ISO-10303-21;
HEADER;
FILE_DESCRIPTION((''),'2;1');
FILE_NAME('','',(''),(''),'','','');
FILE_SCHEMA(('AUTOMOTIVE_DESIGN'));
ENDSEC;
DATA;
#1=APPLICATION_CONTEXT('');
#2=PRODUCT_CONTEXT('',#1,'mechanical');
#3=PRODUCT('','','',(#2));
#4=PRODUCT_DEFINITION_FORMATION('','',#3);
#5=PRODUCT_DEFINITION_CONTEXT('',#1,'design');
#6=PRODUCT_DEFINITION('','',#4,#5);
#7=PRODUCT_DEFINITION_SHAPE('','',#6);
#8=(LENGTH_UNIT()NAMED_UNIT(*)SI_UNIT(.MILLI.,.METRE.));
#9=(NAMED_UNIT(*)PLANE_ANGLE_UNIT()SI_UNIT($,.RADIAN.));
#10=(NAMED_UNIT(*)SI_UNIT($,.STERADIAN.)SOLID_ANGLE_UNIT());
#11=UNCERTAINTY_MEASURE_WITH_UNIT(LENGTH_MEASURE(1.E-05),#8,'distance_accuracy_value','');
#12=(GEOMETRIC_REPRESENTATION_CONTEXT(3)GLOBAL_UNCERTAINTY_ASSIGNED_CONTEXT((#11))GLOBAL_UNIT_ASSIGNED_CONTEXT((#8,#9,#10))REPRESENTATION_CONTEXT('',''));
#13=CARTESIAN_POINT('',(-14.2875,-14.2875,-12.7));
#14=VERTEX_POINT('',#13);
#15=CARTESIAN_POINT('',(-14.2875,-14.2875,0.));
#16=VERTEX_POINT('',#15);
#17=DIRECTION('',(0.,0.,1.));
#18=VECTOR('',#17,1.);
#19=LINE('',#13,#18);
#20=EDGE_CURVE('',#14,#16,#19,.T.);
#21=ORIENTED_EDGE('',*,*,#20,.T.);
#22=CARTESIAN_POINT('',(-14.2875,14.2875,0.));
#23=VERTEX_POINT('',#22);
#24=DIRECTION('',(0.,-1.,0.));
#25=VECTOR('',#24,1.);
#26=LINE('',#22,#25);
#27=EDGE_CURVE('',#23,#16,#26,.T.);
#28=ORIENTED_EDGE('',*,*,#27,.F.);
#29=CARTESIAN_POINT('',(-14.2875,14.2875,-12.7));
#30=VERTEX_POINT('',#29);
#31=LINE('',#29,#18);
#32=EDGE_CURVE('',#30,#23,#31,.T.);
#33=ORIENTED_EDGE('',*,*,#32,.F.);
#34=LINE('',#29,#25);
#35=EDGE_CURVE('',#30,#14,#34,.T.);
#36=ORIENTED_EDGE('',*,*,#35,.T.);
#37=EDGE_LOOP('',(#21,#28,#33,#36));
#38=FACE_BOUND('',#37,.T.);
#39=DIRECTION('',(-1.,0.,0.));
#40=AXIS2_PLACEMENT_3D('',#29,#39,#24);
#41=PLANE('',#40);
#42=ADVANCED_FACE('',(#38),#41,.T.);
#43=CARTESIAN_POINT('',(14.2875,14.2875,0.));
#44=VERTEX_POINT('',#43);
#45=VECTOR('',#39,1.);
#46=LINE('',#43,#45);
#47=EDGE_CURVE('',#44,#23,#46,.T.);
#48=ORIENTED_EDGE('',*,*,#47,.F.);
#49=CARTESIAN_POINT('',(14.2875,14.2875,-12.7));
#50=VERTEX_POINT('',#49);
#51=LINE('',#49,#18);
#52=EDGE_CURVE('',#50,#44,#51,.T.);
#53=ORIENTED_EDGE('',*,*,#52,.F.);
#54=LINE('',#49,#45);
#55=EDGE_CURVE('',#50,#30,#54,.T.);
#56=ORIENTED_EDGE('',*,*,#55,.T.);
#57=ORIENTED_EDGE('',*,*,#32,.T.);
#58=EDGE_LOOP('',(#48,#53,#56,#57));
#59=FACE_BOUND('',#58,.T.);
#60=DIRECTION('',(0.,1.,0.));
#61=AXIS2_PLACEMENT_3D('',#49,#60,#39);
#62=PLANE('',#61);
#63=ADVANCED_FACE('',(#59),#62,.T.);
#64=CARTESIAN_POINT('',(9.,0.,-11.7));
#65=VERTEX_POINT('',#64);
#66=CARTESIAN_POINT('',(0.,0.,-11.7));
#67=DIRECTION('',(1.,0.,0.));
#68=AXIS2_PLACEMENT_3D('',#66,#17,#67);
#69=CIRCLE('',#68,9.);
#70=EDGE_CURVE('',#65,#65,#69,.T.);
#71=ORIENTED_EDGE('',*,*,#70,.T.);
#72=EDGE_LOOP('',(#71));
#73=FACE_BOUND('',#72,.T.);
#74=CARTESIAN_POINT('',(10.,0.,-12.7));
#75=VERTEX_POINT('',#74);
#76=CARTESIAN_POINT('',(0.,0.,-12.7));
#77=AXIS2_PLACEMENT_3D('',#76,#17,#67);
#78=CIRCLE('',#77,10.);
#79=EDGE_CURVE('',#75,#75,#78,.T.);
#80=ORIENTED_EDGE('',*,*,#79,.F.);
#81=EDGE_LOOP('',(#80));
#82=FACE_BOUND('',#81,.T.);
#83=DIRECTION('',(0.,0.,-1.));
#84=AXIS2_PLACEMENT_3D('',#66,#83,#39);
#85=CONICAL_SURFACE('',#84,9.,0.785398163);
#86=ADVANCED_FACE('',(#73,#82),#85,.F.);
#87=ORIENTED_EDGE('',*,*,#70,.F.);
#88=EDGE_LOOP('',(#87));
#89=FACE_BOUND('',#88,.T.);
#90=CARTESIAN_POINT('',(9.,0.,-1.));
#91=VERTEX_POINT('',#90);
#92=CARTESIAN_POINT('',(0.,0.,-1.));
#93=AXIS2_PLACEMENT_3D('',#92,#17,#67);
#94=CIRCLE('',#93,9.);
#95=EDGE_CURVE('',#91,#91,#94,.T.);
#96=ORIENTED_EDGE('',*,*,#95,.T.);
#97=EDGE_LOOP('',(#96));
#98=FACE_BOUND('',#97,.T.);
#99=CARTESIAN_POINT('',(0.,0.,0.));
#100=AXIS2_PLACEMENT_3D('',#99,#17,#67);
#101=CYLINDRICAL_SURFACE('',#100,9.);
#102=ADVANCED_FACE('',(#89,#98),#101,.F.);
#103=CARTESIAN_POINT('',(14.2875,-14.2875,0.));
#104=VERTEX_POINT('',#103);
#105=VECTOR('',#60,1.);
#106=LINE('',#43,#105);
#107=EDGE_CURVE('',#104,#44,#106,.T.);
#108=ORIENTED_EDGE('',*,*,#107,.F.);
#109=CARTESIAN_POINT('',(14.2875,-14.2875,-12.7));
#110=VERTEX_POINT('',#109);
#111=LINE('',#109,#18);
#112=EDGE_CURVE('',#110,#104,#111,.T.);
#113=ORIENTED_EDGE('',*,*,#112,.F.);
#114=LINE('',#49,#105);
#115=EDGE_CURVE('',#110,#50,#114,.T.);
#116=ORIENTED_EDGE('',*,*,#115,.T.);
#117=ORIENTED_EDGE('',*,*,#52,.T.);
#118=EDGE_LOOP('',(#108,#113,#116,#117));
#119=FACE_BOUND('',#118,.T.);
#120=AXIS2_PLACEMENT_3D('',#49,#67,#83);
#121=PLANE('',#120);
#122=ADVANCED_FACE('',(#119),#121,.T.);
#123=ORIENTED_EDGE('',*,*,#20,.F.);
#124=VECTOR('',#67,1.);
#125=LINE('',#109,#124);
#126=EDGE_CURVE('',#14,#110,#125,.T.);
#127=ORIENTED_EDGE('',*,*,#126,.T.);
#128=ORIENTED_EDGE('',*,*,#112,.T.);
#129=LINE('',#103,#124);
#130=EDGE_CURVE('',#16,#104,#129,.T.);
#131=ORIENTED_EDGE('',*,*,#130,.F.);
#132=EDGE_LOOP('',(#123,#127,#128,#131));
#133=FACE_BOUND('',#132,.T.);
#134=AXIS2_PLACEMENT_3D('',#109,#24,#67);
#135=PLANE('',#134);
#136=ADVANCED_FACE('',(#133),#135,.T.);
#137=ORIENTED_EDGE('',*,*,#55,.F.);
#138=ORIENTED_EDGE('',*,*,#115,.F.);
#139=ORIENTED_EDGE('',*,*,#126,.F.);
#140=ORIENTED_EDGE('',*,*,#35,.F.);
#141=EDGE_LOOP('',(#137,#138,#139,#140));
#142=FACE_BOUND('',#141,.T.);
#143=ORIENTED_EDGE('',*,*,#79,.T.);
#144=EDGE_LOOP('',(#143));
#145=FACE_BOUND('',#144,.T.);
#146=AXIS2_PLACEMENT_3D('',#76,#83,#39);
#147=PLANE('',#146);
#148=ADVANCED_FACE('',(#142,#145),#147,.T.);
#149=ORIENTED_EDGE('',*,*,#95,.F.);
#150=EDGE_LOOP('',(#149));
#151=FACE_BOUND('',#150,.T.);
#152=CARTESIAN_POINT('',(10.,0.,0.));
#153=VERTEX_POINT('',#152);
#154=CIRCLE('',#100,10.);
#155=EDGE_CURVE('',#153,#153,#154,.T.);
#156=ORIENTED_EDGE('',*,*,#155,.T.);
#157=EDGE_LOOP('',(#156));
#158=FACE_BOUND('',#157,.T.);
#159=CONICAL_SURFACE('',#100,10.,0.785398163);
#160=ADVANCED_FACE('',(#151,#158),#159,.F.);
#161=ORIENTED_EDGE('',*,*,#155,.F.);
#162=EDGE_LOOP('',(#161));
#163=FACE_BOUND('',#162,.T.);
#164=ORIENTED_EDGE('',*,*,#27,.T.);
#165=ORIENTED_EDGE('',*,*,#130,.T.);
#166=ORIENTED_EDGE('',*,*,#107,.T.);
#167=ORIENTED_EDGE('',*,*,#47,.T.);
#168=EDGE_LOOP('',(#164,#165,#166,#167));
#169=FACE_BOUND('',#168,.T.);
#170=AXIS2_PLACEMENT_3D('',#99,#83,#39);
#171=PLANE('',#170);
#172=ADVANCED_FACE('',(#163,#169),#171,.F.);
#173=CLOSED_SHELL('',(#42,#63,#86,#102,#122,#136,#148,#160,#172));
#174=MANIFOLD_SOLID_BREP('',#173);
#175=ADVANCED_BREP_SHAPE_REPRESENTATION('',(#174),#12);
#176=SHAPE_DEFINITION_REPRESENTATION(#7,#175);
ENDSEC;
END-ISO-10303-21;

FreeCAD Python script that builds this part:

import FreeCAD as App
import Part
import Sketcher
Q = App.Units.Quantity

doc = App.newDocument("Part")
body = doc.addObject("PartDesign::Body", "Body")

sketch1 = body.newObject("Sketcher::SketchObject", "Sketch")
sketch1.AttachmentSupport = (doc.getObject("XY_Plane"), [""])
sketch1.MapMode = "FlatFace"
sketch1.addGeometry([
    Part.LineSegment(App.Vector(-14, 14, 0), App.Vector(-14, -14, 0)),
    Part.LineSegment(App.Vector(-14, -14, 0), App.Vector(14, -14, 0)),
    Part.LineSegment(App.Vector(14, -14, 0), App.Vector(14, 14, 0)),
    Part.LineSegment(App.Vector(14, 14, 0), App.Vector(-14, 14, 0)),
], False)
sketch1.addConstraint([
    Sketcher.Constraint("Coincident", 0, 2, 1, 1),
    Sketcher.Constraint("Coincident", 1, 2, 2, 1),
    Sketcher.Constraint("Coincident", 2, 2, 3, 1),
    Sketcher.Constraint("Coincident", 3, 2, 0, 1),
    Sketcher.Constraint("Vertical", 0),
    Sketcher.Constraint("Horizontal", 1),
    Sketcher.Constraint("Vertical", 2),
    Sketcher.Constraint("Horizontal", 3),
    Sketcher.Constraint("Symmetric", 0, 2, 2, 2, -1, 1),
    Sketcher.Constraint("Equal", 3, 0),
    Sketcher.Constraint("DistanceX", 1, 1, 1, 2, Q("28.575 mm")),
])
pad1 = body.newObject("PartDesign::Pad", "Pad")
pad1.Profile = sketch1
pad1.Length = 12.7
pad1.Reversed = True

sketch2 = body.newObject("Sketcher::SketchObject", "Sketch001")
sketch2.AttachmentSupport = (doc.getObject("YZ_Plane"), [""])
sketch2.MapMode = "FlatFace"
sketch2.addGeometry([
    Part.LineSegment(App.Vector(0, -12.7, 0), App.Vector(0, 0, 0)),
    Part.LineSegment(App.Vector(0, 0, 0), App.Vector(-10, 0, 0)),
    Part.LineSegment(App.Vector(-10, 0, 0), App.Vector(-9, -1, 0)),
    Part.LineSegment(App.Vector(-9, -1, 0), App.Vector(-9, -11.7, 0)),
    Part.LineSegment(App.Vector(-9, -11.7, 0), App.Vector(-10, -12.7, 0)),
    Part.LineSegment(App.Vector(-10, -12.7, 0), App.Vector(0, -12.7, 0)),
], False)
sketch2.addConstraint([
    Sketcher.Constraint("Coincident", 0, 2, 1, 1),
    Sketcher.Constraint("Coincident", 1, 2, 2, 1),
    Sketcher.Constraint("Coincident", 2, 2, 3, 1),
    Sketcher.Constraint("Coincident", 3, 2, 4, 1),
    Sketcher.Constraint("Coincident", 4, 2, 5, 1),
    Sketcher.Constraint("Coincident", 5, 2, 0, 1),
    Sketcher.Constraint("Vertical", 0),
    Sketcher.Constraint("Horizontal", 1),
    Sketcher.Constraint("Vertical", 3),
    Sketcher.Constraint("Horizontal", 5),
    Sketcher.Constraint("Coincident", 0, 2, -1, 1),
    Sketcher.Constraint("Perpendicular", 2, 4),
    Sketcher.Constraint("Vertical", 1, 2, 4, 2),
    Sketcher.Constraint("Equal", 2, 4),
    Sketcher.Constraint("DistanceX", 1, 2, 1, 1, Q("10 mm")),
    Sketcher.Constraint("DistanceY", 0, 1, 0, 2, Q("12.7 mm")),
    Sketcher.Constraint("DistanceY", 3, 2, 3, 1, Q("10.7 mm")),
])
groove = body.newObject("PartDesign::Groove", "Groove")
groove.Profile = sketch2
groove.ReferenceAxis = (sketch2, ["V_Axis"])
groove.Angle = 360

doc.recompute()
